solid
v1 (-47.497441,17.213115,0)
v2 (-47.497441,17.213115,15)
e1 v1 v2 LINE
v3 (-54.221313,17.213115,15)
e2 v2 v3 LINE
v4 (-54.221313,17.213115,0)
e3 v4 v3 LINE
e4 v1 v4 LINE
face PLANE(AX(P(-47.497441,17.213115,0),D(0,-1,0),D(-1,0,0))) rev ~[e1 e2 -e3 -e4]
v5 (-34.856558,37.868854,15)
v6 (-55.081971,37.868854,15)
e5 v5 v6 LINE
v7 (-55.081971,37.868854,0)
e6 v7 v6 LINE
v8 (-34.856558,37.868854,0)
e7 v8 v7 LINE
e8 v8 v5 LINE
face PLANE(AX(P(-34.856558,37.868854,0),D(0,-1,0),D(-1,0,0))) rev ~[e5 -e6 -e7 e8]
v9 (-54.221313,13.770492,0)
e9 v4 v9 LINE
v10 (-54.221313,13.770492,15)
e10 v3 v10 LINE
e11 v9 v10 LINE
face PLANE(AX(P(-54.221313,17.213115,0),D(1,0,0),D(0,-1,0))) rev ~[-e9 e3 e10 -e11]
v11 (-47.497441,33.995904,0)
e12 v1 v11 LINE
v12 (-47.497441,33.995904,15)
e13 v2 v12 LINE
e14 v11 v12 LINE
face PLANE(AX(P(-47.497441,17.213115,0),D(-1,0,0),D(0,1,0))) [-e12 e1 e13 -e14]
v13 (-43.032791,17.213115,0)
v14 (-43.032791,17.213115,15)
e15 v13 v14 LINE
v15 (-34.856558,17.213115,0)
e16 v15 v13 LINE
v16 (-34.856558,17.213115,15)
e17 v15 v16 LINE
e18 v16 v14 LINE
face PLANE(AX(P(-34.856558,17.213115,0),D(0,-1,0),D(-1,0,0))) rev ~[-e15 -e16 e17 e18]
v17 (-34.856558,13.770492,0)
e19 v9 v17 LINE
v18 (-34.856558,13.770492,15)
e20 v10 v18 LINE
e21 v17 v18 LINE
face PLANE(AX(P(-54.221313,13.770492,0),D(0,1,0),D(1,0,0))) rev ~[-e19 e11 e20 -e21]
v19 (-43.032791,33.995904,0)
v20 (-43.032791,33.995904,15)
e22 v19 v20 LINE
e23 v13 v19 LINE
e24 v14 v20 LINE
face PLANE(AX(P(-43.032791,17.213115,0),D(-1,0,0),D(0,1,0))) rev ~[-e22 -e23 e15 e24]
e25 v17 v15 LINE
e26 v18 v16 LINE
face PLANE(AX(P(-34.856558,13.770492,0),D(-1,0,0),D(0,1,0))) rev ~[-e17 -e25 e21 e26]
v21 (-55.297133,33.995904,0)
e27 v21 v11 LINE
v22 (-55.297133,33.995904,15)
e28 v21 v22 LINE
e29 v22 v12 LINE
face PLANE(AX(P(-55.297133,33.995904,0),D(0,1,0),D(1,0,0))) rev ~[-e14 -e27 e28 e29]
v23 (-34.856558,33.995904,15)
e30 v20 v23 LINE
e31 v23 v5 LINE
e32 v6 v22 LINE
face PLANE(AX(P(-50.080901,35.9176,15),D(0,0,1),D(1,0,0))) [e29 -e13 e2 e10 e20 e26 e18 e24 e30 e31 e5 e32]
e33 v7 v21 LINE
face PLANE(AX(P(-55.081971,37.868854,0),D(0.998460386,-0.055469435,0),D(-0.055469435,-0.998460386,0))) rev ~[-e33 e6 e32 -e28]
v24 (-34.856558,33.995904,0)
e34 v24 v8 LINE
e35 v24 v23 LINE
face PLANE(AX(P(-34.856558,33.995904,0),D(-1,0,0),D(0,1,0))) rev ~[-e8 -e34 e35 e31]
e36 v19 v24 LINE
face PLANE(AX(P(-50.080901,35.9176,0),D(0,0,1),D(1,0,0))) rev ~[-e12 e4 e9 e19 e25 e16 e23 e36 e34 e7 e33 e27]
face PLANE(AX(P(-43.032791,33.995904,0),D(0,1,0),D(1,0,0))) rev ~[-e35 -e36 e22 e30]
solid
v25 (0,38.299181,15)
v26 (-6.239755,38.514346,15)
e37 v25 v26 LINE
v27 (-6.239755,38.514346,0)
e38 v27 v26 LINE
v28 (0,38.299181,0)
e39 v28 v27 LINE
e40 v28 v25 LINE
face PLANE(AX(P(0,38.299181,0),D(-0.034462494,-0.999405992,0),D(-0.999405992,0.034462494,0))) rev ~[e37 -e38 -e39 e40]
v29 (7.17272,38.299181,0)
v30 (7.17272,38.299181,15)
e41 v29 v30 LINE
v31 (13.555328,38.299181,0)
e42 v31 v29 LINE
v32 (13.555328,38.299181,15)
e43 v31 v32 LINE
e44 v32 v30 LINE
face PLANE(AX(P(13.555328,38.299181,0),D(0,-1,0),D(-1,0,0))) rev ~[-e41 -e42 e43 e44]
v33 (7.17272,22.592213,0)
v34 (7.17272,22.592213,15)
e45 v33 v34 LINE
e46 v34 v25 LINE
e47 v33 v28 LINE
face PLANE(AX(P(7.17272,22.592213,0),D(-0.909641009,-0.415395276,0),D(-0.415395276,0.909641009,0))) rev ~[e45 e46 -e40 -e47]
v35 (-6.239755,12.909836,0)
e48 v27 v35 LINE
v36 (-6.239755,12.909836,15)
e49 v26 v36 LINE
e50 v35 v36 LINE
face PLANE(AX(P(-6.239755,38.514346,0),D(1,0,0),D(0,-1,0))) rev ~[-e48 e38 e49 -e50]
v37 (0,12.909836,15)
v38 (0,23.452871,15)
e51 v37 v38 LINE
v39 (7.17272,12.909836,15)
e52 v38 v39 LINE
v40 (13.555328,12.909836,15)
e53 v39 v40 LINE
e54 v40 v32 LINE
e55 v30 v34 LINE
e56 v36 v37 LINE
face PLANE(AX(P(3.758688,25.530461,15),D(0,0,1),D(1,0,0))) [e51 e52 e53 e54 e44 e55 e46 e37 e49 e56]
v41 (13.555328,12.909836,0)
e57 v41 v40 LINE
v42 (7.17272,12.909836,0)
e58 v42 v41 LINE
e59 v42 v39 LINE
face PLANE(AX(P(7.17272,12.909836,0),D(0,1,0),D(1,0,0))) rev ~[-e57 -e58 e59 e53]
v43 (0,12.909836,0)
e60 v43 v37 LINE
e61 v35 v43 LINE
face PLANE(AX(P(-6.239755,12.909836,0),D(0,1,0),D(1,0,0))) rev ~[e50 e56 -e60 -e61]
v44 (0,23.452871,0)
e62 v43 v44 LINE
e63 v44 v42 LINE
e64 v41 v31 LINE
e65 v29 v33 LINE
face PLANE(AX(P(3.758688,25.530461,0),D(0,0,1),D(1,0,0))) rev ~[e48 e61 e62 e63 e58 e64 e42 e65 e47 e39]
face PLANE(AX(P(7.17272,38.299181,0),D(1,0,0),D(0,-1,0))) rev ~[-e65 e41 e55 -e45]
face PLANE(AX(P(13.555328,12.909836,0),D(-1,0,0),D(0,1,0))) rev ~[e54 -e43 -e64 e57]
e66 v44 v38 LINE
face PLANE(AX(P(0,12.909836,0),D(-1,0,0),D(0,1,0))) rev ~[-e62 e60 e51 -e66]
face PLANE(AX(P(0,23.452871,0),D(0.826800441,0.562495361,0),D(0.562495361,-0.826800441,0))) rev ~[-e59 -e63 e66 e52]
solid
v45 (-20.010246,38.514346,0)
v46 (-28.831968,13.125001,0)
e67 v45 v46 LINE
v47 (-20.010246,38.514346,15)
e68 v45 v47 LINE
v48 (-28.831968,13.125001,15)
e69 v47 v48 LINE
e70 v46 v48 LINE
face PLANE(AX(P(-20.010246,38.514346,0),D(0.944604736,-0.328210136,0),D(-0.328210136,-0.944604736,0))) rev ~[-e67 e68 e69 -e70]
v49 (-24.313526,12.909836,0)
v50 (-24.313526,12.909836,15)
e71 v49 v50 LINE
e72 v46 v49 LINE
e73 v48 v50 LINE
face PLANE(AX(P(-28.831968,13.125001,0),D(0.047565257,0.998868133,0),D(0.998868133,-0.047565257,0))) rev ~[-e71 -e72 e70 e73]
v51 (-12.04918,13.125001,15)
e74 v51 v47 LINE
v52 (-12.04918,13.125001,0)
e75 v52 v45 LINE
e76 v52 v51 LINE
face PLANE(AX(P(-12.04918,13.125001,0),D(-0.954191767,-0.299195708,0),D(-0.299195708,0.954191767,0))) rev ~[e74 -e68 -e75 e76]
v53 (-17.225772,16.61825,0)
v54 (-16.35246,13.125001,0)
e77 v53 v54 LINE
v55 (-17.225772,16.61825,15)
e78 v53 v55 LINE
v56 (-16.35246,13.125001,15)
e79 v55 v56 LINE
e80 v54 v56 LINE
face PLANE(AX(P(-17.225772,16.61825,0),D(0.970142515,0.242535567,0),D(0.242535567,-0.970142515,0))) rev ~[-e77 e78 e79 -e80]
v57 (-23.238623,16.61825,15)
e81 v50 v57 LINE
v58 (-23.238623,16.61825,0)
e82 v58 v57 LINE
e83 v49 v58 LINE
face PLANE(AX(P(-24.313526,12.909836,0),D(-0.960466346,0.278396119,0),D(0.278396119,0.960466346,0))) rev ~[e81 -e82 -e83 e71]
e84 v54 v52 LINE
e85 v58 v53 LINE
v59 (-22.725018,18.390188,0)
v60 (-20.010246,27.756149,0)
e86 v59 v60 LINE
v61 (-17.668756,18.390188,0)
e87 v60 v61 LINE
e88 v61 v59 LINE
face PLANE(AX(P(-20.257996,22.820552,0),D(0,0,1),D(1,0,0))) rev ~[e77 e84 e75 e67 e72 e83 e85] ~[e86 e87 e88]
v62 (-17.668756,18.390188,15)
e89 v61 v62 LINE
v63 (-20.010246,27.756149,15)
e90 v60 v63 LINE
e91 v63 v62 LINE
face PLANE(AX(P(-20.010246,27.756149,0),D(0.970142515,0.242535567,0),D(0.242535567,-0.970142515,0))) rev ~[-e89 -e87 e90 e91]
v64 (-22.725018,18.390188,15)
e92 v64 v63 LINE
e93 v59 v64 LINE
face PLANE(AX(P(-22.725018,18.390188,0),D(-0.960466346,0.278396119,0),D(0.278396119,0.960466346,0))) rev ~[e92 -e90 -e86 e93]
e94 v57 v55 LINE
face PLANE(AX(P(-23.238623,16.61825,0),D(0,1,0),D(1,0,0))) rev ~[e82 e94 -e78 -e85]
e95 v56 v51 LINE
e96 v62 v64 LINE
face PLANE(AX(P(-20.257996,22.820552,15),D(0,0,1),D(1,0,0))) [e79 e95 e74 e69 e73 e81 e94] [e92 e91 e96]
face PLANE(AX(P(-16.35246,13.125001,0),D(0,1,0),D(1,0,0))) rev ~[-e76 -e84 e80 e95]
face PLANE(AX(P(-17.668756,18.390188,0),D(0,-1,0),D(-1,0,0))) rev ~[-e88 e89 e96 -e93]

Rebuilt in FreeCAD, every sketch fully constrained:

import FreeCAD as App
import Part
import Sketcher
from FreeCAD import Vector


def add_polygon(sketch, points):
    """Adds a closed chain of lines whose ends are joined by coincident constraints."""
    first, n = sketch.GeometryCount, len(points)
    for a, b in zip(points, points[1:] + points[:1]):
        sketch.addGeometry(Part.LineSegment(App.Vector(*a, 0), App.Vector(*b, 0)), False)
    for i in range(n):
        sketch.addConstraint(Sketcher.Constraint("Coincident", first + i, 2, first + (i + 1) % n, 1))

doc = App.newDocument("Part")
body = doc.addObject("PartDesign::Body", "Body")

# Sketch on XY plane
sketch1 = body.newObject("Sketcher::SketchObject", "Sketch")
sketch1.AttachmentSupport = (doc.getObject("XY_Plane"), [""])
sketch1.MapMode = "FlatFace"
add_polygon(sketch1, [(-55.1, 37.9), (-55.3, 34), (-47.5, 34), (-47.5, 17.2), (-54.2, 17.2), (-54.2, 13.8), (-34.9, 13.8), (-34.9, 17.2), (-43, 17.2), (-43, 34), (-34.9, 34), (-34.9, 37.9)])  # lines 0-11
sketch1.addConstraint([
    Sketcher.Constraint("Horizontal", 1),
    Sketcher.Constraint("Vertical", 2),
    Sketcher.Constraint("Horizontal", 3),
    Sketcher.Constraint("Vertical", 4),
    Sketcher.Constraint("Horizontal", 5),
    Sketcher.Constraint("Vertical", 6),
    Sketcher.Constraint("Horizontal", 7),
    Sketcher.Constraint("Vertical", 8),
    Sketcher.Constraint("Horizontal", 9),
    Sketcher.Constraint("Vertical", 10),
    Sketcher.Constraint("Horizontal", 11),
    Sketcher.Constraint("Horizontal", 3, 2, 6, 2),
    Sketcher.Constraint("Horizontal", 1, 2, 8, 2),
    Sketcher.Constraint("Vertical", 6, 2, 9, 2),
    Sketcher.Constraint("DistanceX", 1, 1, 1, 2, 7.799692),
    Sketcher.Constraint("DistanceY", 2, 2, 2, 1, 16.782789),
    Sketcher.Constraint("DistanceY", 10, 1, 10, 2, 3.87295),
    Sketcher.Constraint("Distance", 0, 3.878922),
    Sketcher.Constraint("DistanceX", 3, 2, 3, 1, 6.723872),
    Sketcher.Constraint("DistanceX", 5, 1, 5, 2, 19.364756),
    Sketcher.Constraint("DistanceX", 7, 2, 7, 1, 8.176234),
    Sketcher.Constraint("DistanceY", 4, 2, 4, 1, 3.442624),
    Sketcher.Constraint("DistanceX", 1, 2, -1, 1, 47.497441),
    Sketcher.Constraint("DistanceY", -1, 1, 4, 2, 13.770492),
])
pad1 = body.newObject("PartDesign::Pad", "Pad")
pad1.Profile = sketch1
pad1.Length = 15
body2 = doc.addObject("PartDesign::Body", "Body001")

# Sketch on XY plane
sketch2 = body2.newObject("Sketcher::SketchObject", "Sketch001")
sketch2.AttachmentSupport = (doc.getObject("XY_Plane001"), [""])
sketch2.MapMode = "FlatFace"
add_polygon(sketch2, [(-28.8, 13.1), (-24.3, 12.9), (-23.2, 16.6), (-17.2, 16.6), (-16.4, 13.1), (-12, 13.1), (-20, 38.5)])  # lines 0-6
add_polygon(sketch2, [(-22.7, 18.4), (-20, 27.8), (-17.7, 18.4)])  # lines 7-9
sketch2.addConstraint([
    Sketcher.Constraint("Horizontal", 2),
    Sketcher.Constraint("Horizontal", 4),
    Sketcher.Constraint("Horizontal", 9),
    Sketcher.Constraint("Parallel", 1, 7),
    Sketcher.Constraint("Parallel", 3, 8),
    Sketcher.Constraint("Horizontal", 4, 2, 6, 2),
    Sketcher.Constraint("Vertical", 5, 2, 7, 2),
    Sketcher.Constraint("DistanceY", -1, 1, 3, 2, 13.125001),
    Sketcher.Constraint("DistanceX", 2, 1, 2, 2, 6.012851),
    Sketcher.Constraint("DistanceX", 4, 1, 4, 2, 4.303279),
    Sketcher.Constraint("DistanceX", 9, 2, 9, 1, 5.056262),
    Sketcher.Constraint("DistanceY", 2, 2, 7, 2, 11.137899),
    Sketcher.Constraint("Distance", 0, 4.523562),
    Sketcher.Constraint("Distance", 3, 3.600759),
    Sketcher.Constraint("Distance", 5, 26.608221),
    Sketcher.Constraint("Distance", 8, 9.654211),
    Sketcher.Constraint("DistanceY", -1, 1, 1, 2, 16.61825),
    Sketcher.Constraint("DistanceX", 2, 2, -1, 1, 17.225772),
    Sketcher.Constraint("DistanceX", 6, 2, -1, 1, 28.831968),
    Sketcher.Constraint("DistanceX", 0, 2, 5, 2, 4.30328),
])
pad2 = body2.newObject("PartDesign::Pad", "Pad001")
pad2.Profile = sketch2
pad2.Length = 15
body3 = doc.addObject("PartDesign::Body", "Body002")

# Sketch on XY plane
sketch3 = body3.newObject("Sketcher::SketchObject", "Sketch002")
sketch3.AttachmentSupport = (doc.getObject("XY_Plane002"), [""])
sketch3.MapMode = "FlatFace"
add_polygon(sketch3, [(-6, 13), (0, 13), (0, 23), (7, 13), (14, 13), (14, 38), (7, 38), (7, 23), (0, 38), (-6, 39)])  # lines 0-9
sketch3.addConstraint([
    Sketcher.Constraint("Horizontal", 0),
    Sketcher.Constraint("Vertical", 1),
    Sketcher.Constraint("Horizontal", 3),
    Sketcher.Constraint("Vertical", 4),
    Sketcher.Constraint("Horizontal", 5),
    Sketcher.Constraint("Vertical", 6),
    Sketcher.Constraint("Vertical", 9),
    Sketcher.Constraint("PointOnObject", 0, 2, -2),
    Sketcher.Constraint("PointOnObject", 7, 2, -2),
    Sketcher.Constraint("Horizontal", 0, 2, 2, 2),
    Sketcher.Constraint("Horizontal", 5, 2, 7, 2),
    Sketcher.Constraint("Vertical", 2, 2, 5, 2),
    Sketcher.Constraint("DistanceX", 3, 1, 3, 2, 6.382608),
    Sketcher.Constraint("DistanceY", 9, 2, 9, 1, 25.60451),
    Sketcher.Constraint("DistanceX", 0, 1, 0, 2, 6.239755),
    Sketcher.Constraint("DistanceY", 1, 1, 1, 2, 10.543034),
    Sketcher.Constraint("DistanceY", 4, 1, 4, 2, 25.389344),
    Sketcher.Constraint("DistanceY", 6, 2, 6, 1, 15.706968),
    Sketcher.Constraint("DistanceY", -1, 1, 1, 2, 23.452871),
    Sketcher.Constraint("DistanceX", -1, 1, 2, 2, 7.17272),
])
pad3 = body3.newObject("PartDesign::Pad", "Pad002")
pad3.Profile = sketch3
pad3.Length = 15

doc.recompute()
